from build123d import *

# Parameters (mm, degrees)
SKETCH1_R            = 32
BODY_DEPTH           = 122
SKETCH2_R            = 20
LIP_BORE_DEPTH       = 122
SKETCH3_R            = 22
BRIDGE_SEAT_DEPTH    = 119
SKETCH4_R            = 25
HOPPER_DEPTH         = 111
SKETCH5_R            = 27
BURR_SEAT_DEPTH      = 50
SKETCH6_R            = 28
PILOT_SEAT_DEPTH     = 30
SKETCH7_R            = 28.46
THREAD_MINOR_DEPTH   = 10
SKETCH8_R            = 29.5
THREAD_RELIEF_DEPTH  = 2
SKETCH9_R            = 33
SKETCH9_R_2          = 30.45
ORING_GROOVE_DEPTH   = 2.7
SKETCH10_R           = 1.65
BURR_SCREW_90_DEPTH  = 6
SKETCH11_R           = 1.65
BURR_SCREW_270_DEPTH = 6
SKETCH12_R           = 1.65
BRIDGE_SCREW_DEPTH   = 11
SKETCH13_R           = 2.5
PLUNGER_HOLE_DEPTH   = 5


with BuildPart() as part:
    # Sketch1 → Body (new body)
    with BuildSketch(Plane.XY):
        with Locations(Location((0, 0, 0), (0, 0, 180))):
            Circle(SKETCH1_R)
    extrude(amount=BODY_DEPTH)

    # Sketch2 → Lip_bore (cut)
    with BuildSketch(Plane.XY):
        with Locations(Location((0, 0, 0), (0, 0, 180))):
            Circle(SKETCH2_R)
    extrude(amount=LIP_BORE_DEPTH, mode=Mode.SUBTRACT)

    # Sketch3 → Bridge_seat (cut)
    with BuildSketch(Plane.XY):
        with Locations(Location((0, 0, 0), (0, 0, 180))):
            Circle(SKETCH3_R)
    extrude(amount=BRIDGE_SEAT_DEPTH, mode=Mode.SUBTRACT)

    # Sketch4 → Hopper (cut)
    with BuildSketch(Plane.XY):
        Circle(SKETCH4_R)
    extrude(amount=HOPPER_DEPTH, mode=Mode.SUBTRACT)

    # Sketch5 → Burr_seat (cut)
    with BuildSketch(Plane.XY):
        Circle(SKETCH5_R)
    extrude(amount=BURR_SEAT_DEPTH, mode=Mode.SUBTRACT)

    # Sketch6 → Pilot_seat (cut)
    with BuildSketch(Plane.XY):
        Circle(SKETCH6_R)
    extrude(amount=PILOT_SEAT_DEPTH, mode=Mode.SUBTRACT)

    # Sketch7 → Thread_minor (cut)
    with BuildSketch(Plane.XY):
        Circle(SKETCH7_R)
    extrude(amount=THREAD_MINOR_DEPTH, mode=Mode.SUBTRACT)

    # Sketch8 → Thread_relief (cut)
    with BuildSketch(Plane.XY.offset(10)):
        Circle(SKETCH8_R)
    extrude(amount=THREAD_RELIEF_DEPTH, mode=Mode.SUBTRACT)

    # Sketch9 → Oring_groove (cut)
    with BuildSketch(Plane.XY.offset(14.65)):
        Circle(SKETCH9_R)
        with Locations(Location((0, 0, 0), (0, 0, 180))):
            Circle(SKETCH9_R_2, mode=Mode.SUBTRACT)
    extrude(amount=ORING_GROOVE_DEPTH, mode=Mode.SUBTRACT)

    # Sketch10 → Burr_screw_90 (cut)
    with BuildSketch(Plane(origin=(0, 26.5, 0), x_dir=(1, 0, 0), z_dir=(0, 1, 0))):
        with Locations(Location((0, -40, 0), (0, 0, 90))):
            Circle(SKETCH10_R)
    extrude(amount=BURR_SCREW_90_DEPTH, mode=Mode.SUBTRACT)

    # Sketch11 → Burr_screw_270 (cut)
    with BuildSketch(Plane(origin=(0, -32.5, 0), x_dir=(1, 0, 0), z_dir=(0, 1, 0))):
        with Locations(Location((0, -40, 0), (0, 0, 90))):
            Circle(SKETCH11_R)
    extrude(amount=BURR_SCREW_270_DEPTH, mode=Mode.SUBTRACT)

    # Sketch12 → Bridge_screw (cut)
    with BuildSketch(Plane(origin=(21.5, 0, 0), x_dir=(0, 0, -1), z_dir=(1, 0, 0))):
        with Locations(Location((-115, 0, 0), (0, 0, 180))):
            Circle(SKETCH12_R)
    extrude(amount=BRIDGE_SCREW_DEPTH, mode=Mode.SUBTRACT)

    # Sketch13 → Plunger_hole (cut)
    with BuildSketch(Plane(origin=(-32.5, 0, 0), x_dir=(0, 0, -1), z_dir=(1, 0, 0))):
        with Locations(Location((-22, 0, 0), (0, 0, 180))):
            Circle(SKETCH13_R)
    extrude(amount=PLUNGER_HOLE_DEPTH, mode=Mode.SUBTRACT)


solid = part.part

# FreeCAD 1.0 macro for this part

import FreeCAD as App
import Part
import Sketcher

V = App.Vector

doc = App.newDocument("Part")
params = doc.addObject("Spreadsheet::Sheet", "Params")
for row, (alias, value) in enumerate([
    ("sketch1_diameter", "64 mm"),
    ("pad1_length", "122 mm"),
    ("sketch2_diameter", "40 mm"),
    ("pocket1_length", "122 mm"),
    ("sketch3_diameter", "44 mm"),
    ("pocket2_length", "119 mm"),
    ("sketch4_diameter", "50 mm"),
    ("pocket3_length", "111 mm"),
    ("sketch5_diameter", "54 mm"),
    ("pocket4_length", "50 mm"),
    ("sketch6_diameter", "56 mm"),
    ("pocket5_length", "30 mm"),
    ("sketch7_diameter", "56.92 mm"),
    ("pocket6_length", "10 mm"),
    ("sketch8_diameter", "59 mm"),
    ("pocket7_length", "2 mm"),
    ("sketch9_diameter", "66 mm"),
    ("sketch9_diameter2", "60.9 mm"),
    ("pocket8_length", "2.7 mm"),
    ("sketch10_diameter", "3.3 mm"),
    ("pocket9_length", "6 mm"),
    ("sketch11_diameter", "3.3 mm"),
    ("pocket10_length", "6 mm"),
    ("sketch12_diameter", "3.3 mm"),
    ("pocket11_length", "11 mm"),
    ("sketch13_diameter", "5 mm"),
    ("pocket12_length", "5 mm"),
], start=1):
    params.set(f"A{row}", alias)
    params.set(f"B{row}", "=" + value)
    params.setAlias(f"B{row}", alias)

body = doc.addObject("PartDesign::Body", "Body")

sketch1 = body.newObject("Sketcher::SketchObject", "Sketch")
sketch1.AttachmentSupport = (doc.getObject("XY_Plane"), [""])
sketch1.MapMode = "FlatFace"
sketch1.addGeometry(Part.Circle(V(0, 0, 0), V(0, 0, 1), 32), False)
sketch1.addConstraint([
    Sketcher.Constraint("Coincident", 0, 3, -1, 1),
    Sketcher.Constraint("Diameter", 0, 64.0),
])
sketch1.setExpression("Constraints[1]", "Params.sketch1_diameter")
pad1 = body.newObject("PartDesign::Pad", "Pad")
pad1.Profile = sketch1
pad1.setExpression("Length", "Params.pad1_length")

sketch2 = body.newObject("Sketcher::SketchObject", "Sketch001")
sketch2.AttachmentSupport = (doc.getObject("XY_Plane"), [""])
sketch2.MapMode = "FlatFace"
sketch2.addGeometry(Part.Circle(V(0, 0, 0), V(0, 0, 1), 20), False)
sketch2.addConstraint([
    Sketcher.Constraint("Coincident", 0, 3, -1, 1),
    Sketcher.Constraint("Diameter", 0, 40.0),
])
sketch2.setExpression("Constraints[1]", "Params.sketch2_diameter")
pocket1 = body.newObject("PartDesign::Pocket", "Pocket")
pocket1.Profile = sketch2
pocket1.setExpression("Length", "Params.pocket1_length")
pocket1.Reversed = True

sketch3 = body.newObject("Sketcher::SketchObject", "Sketch002")
sketch3.AttachmentSupport = (doc.getObject("XY_Plane"), [""])
sketch3.MapMode = "FlatFace"
sketch3.addGeometry(Part.Circle(V(0, 0, 0), V(0, 0, 1), 22), False)
sketch3.addConstraint([
    Sketcher.Constraint("Coincident", 0, 3, -1, 1),
    Sketcher.Constraint("Diameter", 0, 44.0),
])
sketch3.setExpression("Constraints[1]", "Params.sketch3_diameter")
pocket2 = body.newObject("PartDesign::Pocket", "Pocket001")
pocket2.Profile = sketch3
pocket2.setExpression("Length", "Params.pocket2_length")
pocket2.Reversed = True

sketch4 = body.newObject("Sketcher::SketchObject", "Sketch003")
sketch4.AttachmentSupport = (doc.getObject("XY_Plane"), [""])
sketch4.MapMode = "FlatFace"
sketch4.addGeometry(Part.Circle(V(0, 0, 0), V(0, 0, 1), 25), False)
sketch4.addConstraint([
    Sketcher.Constraint("Coincident", 0, 3, -1, 1),
    Sketcher.Constraint("Diameter", 0, 50.0),
])
sketch4.setExpression("Constraints[1]", "Params.sketch4_diameter")
pocket3 = body.newObject("PartDesign::Pocket", "Pocket002")
pocket3.Profile = sketch4
pocket3.setExpression("Length", "Params.pocket3_length")
pocket3.Reversed = True

sketch5 = body.newObject("Sketcher::SketchObject", "Sketch004")
sketch5.AttachmentSupport = (doc.getObject("XY_Plane"), [""])
sketch5.MapMode = "FlatFace"
sketch5.addGeometry(Part.Circle(V(0, 0, 0), V(0, 0, 1), 27), False)
sketch5.addConstraint([
    Sketcher.Constraint("Coincident", 0, 3, -1, 1),
    Sketcher.Constraint("Diameter", 0, 54.0),
])
sketch5.setExpression("Constraints[1]", "Params.sketch5_diameter")
pocket4 = body.newObject("PartDesign::Pocket", "Pocket003")
pocket4.Profile = sketch5
pocket4.setExpression("Length", "Params.pocket4_length")
pocket4.Reversed = True

sketch6 = body.newObject("Sketcher::SketchObject", "Sketch005")
sketch6.AttachmentSupport = (doc.getObject("XY_Plane"), [""])
sketch6.MapMode = "FlatFace"
sketch6.addGeometry(Part.Circle(V(0, 0, 0), V(0, 0, 1), 28), False)
sketch6.addConstraint([
    Sketcher.Constraint("Coincident", 0, 3, -1, 1),
    Sketcher.Constraint("Diameter", 0, 56.0),
])
sketch6.setExpression("Constraints[1]", "Params.sketch6_diameter")
pocket5 = body.newObject("PartDesign::Pocket", "Pocket004")
pocket5.Profile = sketch6
pocket5.setExpression("Length", "Params.pocket5_length")
pocket5.Reversed = True

sketch7 = body.newObject("Sketcher::SketchObject", "Sketch006")
sketch7.AttachmentSupport = (doc.getObject("XY_Plane"), [""])
sketch7.MapMode = "FlatFace"
sketch7.addGeometry(Part.Circle(V(0, 0, 0), V(0, 0, 1), 28.46), False)
sketch7.addConstraint([
    Sketcher.Constraint("Coincident", 0, 3, -1, 1),
    Sketcher.Constraint("Diameter", 0, 56.92),
])
sketch7.setExpression("Constraints[1]", "Params.sketch7_diameter")
pocket6 = body.newObject("PartDesign::Pocket", "Pocket005")
pocket6.Profile = sketch7
pocket6.setExpression("Length", "Params.pocket6_length")
pocket6.Reversed = True

sketch8 = body.newObject("Sketcher::SketchObject", "Sketch007")
sketch8.AttachmentSupport = (doc.getObject("XY_Plane"), [""])
sketch8.MapMode = "FlatFace"
sketch8.AttachmentOffset = App.Placement(V(0, 0, 10), App.Rotation())
sketch8.addGeometry(Part.Circle(V(0, 0, 0), V(0, 0, 1), 29.5), False)
sketch8.addConstraint([
    Sketcher.Constraint("Coincident", 0, 3, -1, 1),
    Sketcher.Constraint("Diameter", 0, 59.0),
])
sketch8.setExpression("Constraints[1]", "Params.sketch8_diameter")
pocket7 = body.newObject("PartDesign::Pocket", "Pocket006")
pocket7.Profile = sketch8
pocket7.setExpression("Length", "Params.pocket7_length")
pocket7.Reversed = True

sketch9 = body.newObject("Sketcher::SketchObject", "Sketch008")
sketch9.AttachmentSupport = (doc.getObject("XY_Plane"), [""])
sketch9.MapMode = "FlatFace"
sketch9.AttachmentOffset = App.Placement(V(0, 0, 14.65), App.Rotation())
sketch9.addGeometry([
    Part.Circle(V(0, 0, 0), V(0, 0, 1), 33),
    Part.Circle(V(0, 0, 0), V(0, 0, 1), 30.45),
], False)
sketch9.addConstraint([
    Sketcher.Constraint("Coincident", 0, 3, -1, 1),
    Sketcher.Constraint("Coincident", 1, 3, -1, 1),
    Sketcher.Constraint("Diameter", 0, 66.0),
    Sketcher.Constraint("Diameter", 1, 60.9),
])
sketch9.setExpression("Constraints[2]", "Params.sketch9_diameter")
sketch9.setExpression("Constraints[3]", "Params.sketch9_diameter2")
pocket8 = body.newObject("PartDesign::Pocket", "Pocket007")
pocket8.Profile = sketch9
pocket8.setExpression("Length", "Params.pocket8_length")
pocket8.Reversed = True

sketch10 = body.newObject("Sketcher::SketchObject", "Sketch009")
sketch10.AttachmentSupport = (doc.getObject("XZ_Plane"), [""])
sketch10.MapMode = "FlatFace"
sketch10.AttachmentOffset = App.Placement(V(0, 0, -26.5), App.Rotation())
sketch10.addGeometry(Part.Circle(V(0, 40, 0), V(0, 0, 1), 1.65), False)
sketch10.addConstraint([
    Sketcher.Constraint("PointOnObject", 0, 3, -2),
    Sketcher.Constraint("Diameter", 0, 3.3),
    Sketcher.Constraint("DistanceY", -1, 1, 0, 3, 40.0),
])
sketch10.setExpression("Constraints[1]", "Params.sketch10_diameter")
pocket9 = body.newObject("PartDesign::Pocket", "Pocket008")
pocket9.Profile = sketch10
pocket9.setExpression("Length", "Params.pocket9_length")

sketch11 = body.newObject("Sketcher::SketchObject", "Sketch010")
sketch11.AttachmentSupport = (doc.getObject("XZ_Plane"), [""])
sketch11.MapMode = "FlatFace"
sketch11.AttachmentOffset = App.Placement(V(0, 0, 32.5), App.Rotation())
sketch11.addGeometry(Part.Circle(V(0, 40, 0), V(0, 0, 1), 1.65), False)
sketch11.addConstraint([
    Sketcher.Constraint("PointOnObject", 0, 3, -2),
    Sketcher.Constraint("Diameter", 0, 3.3),
    Sketcher.Constraint("DistanceY", -1, 1, 0, 3, 40.0),
])
sketch11.setExpression("Constraints[1]", "Params.sketch11_diameter")
pocket10 = body.newObject("PartDesign::Pocket", "Pocket009")
pocket10.Profile = sketch11
pocket10.setExpression("Length", "Params.pocket10_length")

sketch12 = body.newObject("Sketcher::SketchObject", "Sketch011")
sketch12.AttachmentSupport = (doc.getObject("YZ_Plane"), [""])
sketch12.MapMode = "FlatFace"
sketch12.AttachmentOffset = App.Placement(V(0, 0, 21.5), App.Rotation())
sketch12.addGeometry(Part.Circle(V(0, 115, 0), V(0, 0, 1), 1.65), False)
sketch12.addConstraint([
    Sketcher.Constraint("PointOnObject", 0, 3, -2),
    Sketcher.Constraint("Diameter", 0, 3.3),
    Sketcher.Constraint("DistanceY", -1, 1, 0, 3, 115.0),
])
sketch12.setExpression("Constraints[1]", "Params.sketch12_diameter")
pocket11 = body.newObject("PartDesign::Pocket", "Pocket010")
pocket11.Profile = sketch12
pocket11.setExpression("Length", "Params.pocket11_length")
pocket11.Reversed = True

sketch13 = body.newObject("Sketcher::SketchObject", "Sketch012")
sketch13.AttachmentSupport = (doc.getObject("YZ_Plane"), [""])
sketch13.MapMode = "FlatFace"
sketch13.AttachmentOffset = App.Placement(V(0, 0, -32.5), App.Rotation())
sketch13.addGeometry(Part.Circle(V(0, 22, 0), V(0, 0, 1), 2.5), False)
sketch13.addConstraint([
    Sketcher.Constraint("PointOnObject", 0, 3, -2),
    Sketcher.Constraint("Diameter", 0, 5.0),
    Sketcher.Constraint("DistanceY", -1, 1, 0, 3, 22.0),
])
sketch13.setExpression("Constraints[1]", "Params.sketch13_diameter")
pocket12 = body.newObject("PartDesign::Pocket", "Pocket011")
pocket12.Profile = sketch13
pocket12.setExpression("Length", "Params.pocket12_length")
pocket12.Reversed = True

doc.recompute()
